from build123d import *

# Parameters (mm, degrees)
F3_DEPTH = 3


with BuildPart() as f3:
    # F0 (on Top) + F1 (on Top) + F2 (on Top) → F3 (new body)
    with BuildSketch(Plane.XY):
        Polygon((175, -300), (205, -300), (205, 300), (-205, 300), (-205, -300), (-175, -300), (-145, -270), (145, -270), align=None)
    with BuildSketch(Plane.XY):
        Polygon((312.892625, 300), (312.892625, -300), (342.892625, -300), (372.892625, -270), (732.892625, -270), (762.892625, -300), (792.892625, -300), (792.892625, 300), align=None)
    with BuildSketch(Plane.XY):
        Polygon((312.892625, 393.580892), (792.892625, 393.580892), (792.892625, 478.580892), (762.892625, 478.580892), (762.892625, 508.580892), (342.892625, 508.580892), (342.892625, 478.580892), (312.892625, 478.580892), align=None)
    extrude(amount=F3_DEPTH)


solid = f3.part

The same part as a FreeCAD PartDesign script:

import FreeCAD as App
import Part
import Sketcher
Q = App.Units.Quantity


def add_polygon(sketch, points):
    """Adds a closed chain of lines whose ends are joined by coincident constraints."""
    first, n = sketch.GeometryCount, len(points)
    for a, b in zip(points, points[1:] + points[:1]):
        sketch.addGeometry(Part.LineSegment(App.Vector(*a, 0), App.Vector(*b, 0)), False)
    for i in range(n):
        sketch.addConstraint(Sketcher.Constraint("Coincident", first + i, 2, first + (i + 1) % n, 1))

doc = App.newDocument("Part")
params = doc.addObject("Spreadsheet::Sheet", "Params")
for row, (alias, value) in enumerate([
    ("sketch1_width", "30 mm"),
    ("sketch1_width2", "410 mm"),
    ("sketch1_width3", "290 mm"),
    ("sketch1_width4", "360 mm"),
    ("sketch1_height", "600 mm"),
    ("pad1_length", "3 mm"),
], start=1):
    params.set(f"A{row}", alias)
    params.set(f"B{row}", "=" + value)
    params.setAlias(f"B{row}", alias)

body = doc.addObject("PartDesign::Body", "Body")
body.AllowCompound = True

sketch1 = body.newObject("Sketcher::SketchObject", "Sketch")
sketch1.AttachmentSupport = (doc.getObject("XY_Plane"), [""])
sketch1.MapMode = "FlatFace"
add_polygon(sketch1, [(175, -300), (205, -300), (205, 300), (-205, 300), (-205, -300), (-175, -300), (-145, -270), (145, -270)])
add_polygon(sketch1, [(312.892625, 300), (312.892625, -300), (342.892625, -300), (372.892625, -270), (732.892625, -270), (762.892625, -300), (792.892625, -300), (792.892625, 300)])
add_polygon(sketch1, [(312.892625, 393.580892), (792.892625, 393.580892), (792.892625, 478.580892), (762.892625, 478.580892), (762.892625, 508.580892), (342.892625, 508.580892), (342.892625, 478.580892), (312.892625, 478.580892)])
sketch1.addConstraint(Sketcher.Constraint("Horizontal", 0))
sketch1.addConstraint(Sketcher.Constraint("Vertical", 1))
sketch1.addConstraint(Sketcher.Constraint("Horizontal", 2))
sketch1.addConstraint(Sketcher.Constraint("Vertical", 3))
sketch1.addConstraint(Sketcher.Constraint("Horizontal", 4))
sketch1.addConstraint(Sketcher.Constraint("Horizontal", 6))
sketch1.addConstraint(Sketcher.Constraint("Vertical", 8))
sketch1.addConstraint(Sketcher.Constraint("Horizontal", 9))
sketch1.addConstraint(Sketcher.Constraint("Horizontal", 11))
sketch1.addConstraint(Sketcher.Constraint("Horizontal", 13))
sketch1.addConstraint(Sketcher.Constraint("Vertical", 14))
sketch1.addConstraint(Sketcher.Constraint("Horizontal", 15))
sketch1.addConstraint(Sketcher.Constraint("Horizontal", 16))
sketch1.addConstraint(Sketcher.Constraint("Vertical", 17))
sketch1.addConstraint(Sketcher.Constraint("Horizontal", 18))
sketch1.addConstraint(Sketcher.Constraint("Vertical", 19))
sketch1.addConstraint(Sketcher.Constraint("Horizontal", 20))
sketch1.addConstraint(Sketcher.Constraint("Vertical", 21))
sketch1.addConstraint(Sketcher.Constraint("Horizontal", 22))
sketch1.addConstraint(Sketcher.Constraint("Vertical", 23))
sketch1.addConstraint(Sketcher.Constraint("Symmetric", 0, 2, 2, 2, -1, 1))
sketch1.addConstraint(Sketcher.Constraint("Symmetric", 4, 2, 7, 2, -2))
sketch1.addConstraint(Sketcher.Constraint("Perpendicular", 5, 7))
sketch1.addConstraint(Sketcher.Constraint("Perpendicular", 7, 10))
sketch1.addConstraint(Sketcher.Constraint("Perpendicular", 10, 12))
sketch1.addConstraint(Sketcher.Constraint("Horizontal", 7, 2, 8, 2))
sketch1.addConstraint(Sketcher.Constraint("Horizontal", 6, 2, 10, 2))
sketch1.addConstraint(Sketcher.Constraint("Horizontal", 9, 2, 12, 2))
sketch1.addConstraint(Sketcher.Constraint("Horizontal", 2, 2, 14, 2))
sketch1.addConstraint(Sketcher.Constraint("Horizontal", 18, 2, 21, 2))
sketch1.addConstraint(Sketcher.Constraint("Vertical", 14, 2, 16, 2))
sketch1.addConstraint(Sketcher.Constraint("Vertical", 12, 2, 18, 2))
sketch1.addConstraint(Sketcher.Constraint("Vertical", 9, 2, 20, 2))
sketch1.addConstraint(Sketcher.Constraint("Vertical", 15, 2, 22, 2))
sketch1.addConstraint(Sketcher.Constraint("Equal", 4, 9))
sketch1.addConstraint(Sketcher.Constraint("Equal", 9, 13))
sketch1.addConstraint(Sketcher.Constraint("Equal", 22, 19))
sketch1.addConstraint(Sketcher.Constraint("Equal", 5, 7))
sketch1.addConstraint(Sketcher.Constraint("DistanceX", 0, 1, 0, 2, Q("30 mm")))
sketch1.addConstraint(Sketcher.Constraint("DistanceX", 2, 2, 2, 1, Q("410 mm")))
sketch1.addConstraint(Sketcher.Constraint("DistanceX", 6, 1, 6, 2, Q("290 mm")))
sketch1.addConstraint(Sketcher.Constraint("DistanceX", 11, 1, 11, 2, Q("360 mm")))
sketch1.addConstraint(Sketcher.Constraint("DistanceY", 1, 1, 1, 2, Q("600 mm")))
sketch1.addConstraint(Sketcher.Constraint("DistanceY", 17, 1, 17, 2, Q("85 mm")))
sketch1.addConstraint(Sketcher.Constraint("DistanceY", -1, 1, 16, 2, Q("393.580892 mm")))
sketch1.addConstraint(Sketcher.Constraint("DistanceX", -1, 1, 8, 2, Q("312.892625 mm")))
sketch1.setExpression("Constraints[62]", "Params.sketch1_width")
sketch1.setExpression("Constraints[63]", "Params.sketch1_width2")
sketch1.setExpression("Constraints[64]", "Params.sketch1_width3")
sketch1.setExpression("Constraints[65]", "Params.sketch1_width4")
sketch1.setExpression("Constraints[66]", "Params.sketch1_height")
pad1 = body.newObject("PartDesign::Pad", "Pad")
pad1.Profile = sketch1
pad1.setExpression("Length", "Params.pad1_length")

doc.recompute()
